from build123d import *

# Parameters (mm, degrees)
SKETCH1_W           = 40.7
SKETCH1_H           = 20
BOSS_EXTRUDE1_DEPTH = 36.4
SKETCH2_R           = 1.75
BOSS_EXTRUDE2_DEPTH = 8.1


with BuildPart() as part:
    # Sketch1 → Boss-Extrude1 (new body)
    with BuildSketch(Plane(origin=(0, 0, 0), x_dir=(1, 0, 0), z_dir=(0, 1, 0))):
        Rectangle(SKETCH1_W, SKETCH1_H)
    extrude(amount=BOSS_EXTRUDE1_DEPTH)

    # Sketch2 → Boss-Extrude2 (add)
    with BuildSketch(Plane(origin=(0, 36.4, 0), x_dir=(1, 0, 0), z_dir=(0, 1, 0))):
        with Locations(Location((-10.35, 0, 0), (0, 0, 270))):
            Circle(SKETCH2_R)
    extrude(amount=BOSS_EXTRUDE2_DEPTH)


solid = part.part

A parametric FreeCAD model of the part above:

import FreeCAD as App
import Part
import Sketcher
Q = App.Units.Quantity


def add_polygon(sketch, points):
    """Adds a closed chain of lines whose ends are joined by coincident constraints."""
    first, n = sketch.GeometryCount, len(points)
    for a, b in zip(points, points[1:] + points[:1]):
        sketch.addGeometry(Part.LineSegment(App.Vector(*a, 0), App.Vector(*b, 0)), False)
    for i in range(n):
        sketch.addConstraint(Sketcher.Constraint("Coincident", first + i, 2, first + (i + 1) % n, 1))

doc = App.newDocument("Part")
body = doc.addObject("PartDesign::Body", "Body")

# Sketch on XZ plane
sketch1 = body.newObject("Sketcher::SketchObject", "Sketch")
sketch1.AttachmentSupport = (doc.getObject("XZ_Plane"), [""])
sketch1.MapMode = "FlatFace"
add_polygon(sketch1, [(-20, -10), (-20, 10), (20, 10), (20, -10)])  # lines 0-3
sketch1.addConstraint([
    Sketcher.Constraint("Vertical", 0),
    Sketcher.Constraint("Horizontal", 1),
    Sketcher.Constraint("Vertical", 2),
    Sketcher.Constraint("Horizontal", 3),
    Sketcher.Constraint("Symmetric", 0, 2, 2, 2, -1, 1),
    Sketcher.Constraint("DistanceY", 0, 1, 0, 2, Q("20 mm")),
    Sketcher.Constraint("DistanceX", 1, 1, 1, 2, Q("40.7 mm")),
])
pad1 = body.newObject("PartDesign::Pad", "Pad")
pad1.Profile = sketch1
pad1.Length = 36.4
pad1.Reversed = True

# Sketch on XZ plane
sketch2 = body.newObject("Sketcher::SketchObject", "Sketch001")
sketch2.AttachmentSupport = (doc.getObject("XZ_Plane"), [""])
sketch2.MapMode = "FlatFace"
sketch2.AttachmentOffset = App.Placement(App.Vector(0, 0, -36.4), App.Rotation())
sketch2.addGeometry(Part.Circle(App.Vector(-10.3, 0, 0), App.Vector(0, 0, 1), 1.8), False)
sketch2.addConstraint([
    Sketcher.Constraint("PointOnObject", 0, 3, -1),
    Sketcher.Constraint("Diameter", 0, Q("3.5 mm")),
    Sketcher.Constraint("DistanceX", 0, 3, -1, 1, Q("10.35 mm")),
])
pad2 = body.newObject("PartDesign::Pad", "Pad001")
pad2.Profile = sketch2
pad2.Length = 8.1
pad2.Reversed = True

doc.recompute()
